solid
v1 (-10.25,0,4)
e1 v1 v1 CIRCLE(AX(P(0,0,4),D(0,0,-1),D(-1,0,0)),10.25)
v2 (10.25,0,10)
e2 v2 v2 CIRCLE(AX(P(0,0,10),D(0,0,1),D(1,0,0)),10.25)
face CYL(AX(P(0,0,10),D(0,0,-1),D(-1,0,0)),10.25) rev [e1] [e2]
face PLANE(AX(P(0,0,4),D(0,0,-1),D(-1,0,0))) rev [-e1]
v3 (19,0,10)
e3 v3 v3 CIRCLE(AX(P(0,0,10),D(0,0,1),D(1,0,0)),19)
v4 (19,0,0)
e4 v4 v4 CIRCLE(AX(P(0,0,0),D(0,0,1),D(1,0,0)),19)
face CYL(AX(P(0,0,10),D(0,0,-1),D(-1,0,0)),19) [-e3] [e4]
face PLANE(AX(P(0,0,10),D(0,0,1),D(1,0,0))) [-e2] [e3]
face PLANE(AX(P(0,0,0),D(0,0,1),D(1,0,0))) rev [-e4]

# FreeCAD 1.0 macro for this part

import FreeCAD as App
import Part
import Sketcher

V = App.Vector

doc = App.newDocument("Part")
body = doc.addObject("PartDesign::Body", "Body")

# Sketch on XY plane
sketch1 = body.newObject("Sketcher::SketchObject", "Sketch")
sketch1.AttachmentSupport = (doc.getObject("XY_Plane"), [""])
sketch1.MapMode = "FlatFace"
sketch1.addGeometry([
    Part.Circle(V(0, 0, 0), V(0, 0, 1), 19),
    Part.Circle(V(0, 0, 0), V(0, 0, 1), 10),
], False)
sketch1.addConstraint([
    Sketcher.Constraint("Coincident", 0, 3, -1, 1),
    Sketcher.Constraint("Coincident", 1, 3, -1, 1),
    Sketcher.Constraint("Diameter", 0, 38.0),
    Sketcher.Constraint("Diameter", 1, 20.5),
])
pad1 = body.newObject("PartDesign::Pad", "Pad")
pad1.Profile = sketch1
pad1.Length = 10

# Sketch on XY plane
sketch2 = body.newObject("Sketcher::SketchObject", "Sketch001")
sketch2.AttachmentSupport = (doc.getObject("XY_Plane"), [""])
sketch2.MapMode = "FlatFace"
sketch2.addGeometry(Part.Circle(V(0, 0, 0), V(0, 0, 1), 10), False)
sketch2.addConstraint([
    Sketcher.Constraint("Coincident", 0, 3, -1, 1),
    Sketcher.Constraint("Diameter", 0, 20.5),
])
pad2 = body.newObject("PartDesign::Pad", "Pad001")
pad2.Profile = sketch2
pad2.Length = 4

doc.recompute()
